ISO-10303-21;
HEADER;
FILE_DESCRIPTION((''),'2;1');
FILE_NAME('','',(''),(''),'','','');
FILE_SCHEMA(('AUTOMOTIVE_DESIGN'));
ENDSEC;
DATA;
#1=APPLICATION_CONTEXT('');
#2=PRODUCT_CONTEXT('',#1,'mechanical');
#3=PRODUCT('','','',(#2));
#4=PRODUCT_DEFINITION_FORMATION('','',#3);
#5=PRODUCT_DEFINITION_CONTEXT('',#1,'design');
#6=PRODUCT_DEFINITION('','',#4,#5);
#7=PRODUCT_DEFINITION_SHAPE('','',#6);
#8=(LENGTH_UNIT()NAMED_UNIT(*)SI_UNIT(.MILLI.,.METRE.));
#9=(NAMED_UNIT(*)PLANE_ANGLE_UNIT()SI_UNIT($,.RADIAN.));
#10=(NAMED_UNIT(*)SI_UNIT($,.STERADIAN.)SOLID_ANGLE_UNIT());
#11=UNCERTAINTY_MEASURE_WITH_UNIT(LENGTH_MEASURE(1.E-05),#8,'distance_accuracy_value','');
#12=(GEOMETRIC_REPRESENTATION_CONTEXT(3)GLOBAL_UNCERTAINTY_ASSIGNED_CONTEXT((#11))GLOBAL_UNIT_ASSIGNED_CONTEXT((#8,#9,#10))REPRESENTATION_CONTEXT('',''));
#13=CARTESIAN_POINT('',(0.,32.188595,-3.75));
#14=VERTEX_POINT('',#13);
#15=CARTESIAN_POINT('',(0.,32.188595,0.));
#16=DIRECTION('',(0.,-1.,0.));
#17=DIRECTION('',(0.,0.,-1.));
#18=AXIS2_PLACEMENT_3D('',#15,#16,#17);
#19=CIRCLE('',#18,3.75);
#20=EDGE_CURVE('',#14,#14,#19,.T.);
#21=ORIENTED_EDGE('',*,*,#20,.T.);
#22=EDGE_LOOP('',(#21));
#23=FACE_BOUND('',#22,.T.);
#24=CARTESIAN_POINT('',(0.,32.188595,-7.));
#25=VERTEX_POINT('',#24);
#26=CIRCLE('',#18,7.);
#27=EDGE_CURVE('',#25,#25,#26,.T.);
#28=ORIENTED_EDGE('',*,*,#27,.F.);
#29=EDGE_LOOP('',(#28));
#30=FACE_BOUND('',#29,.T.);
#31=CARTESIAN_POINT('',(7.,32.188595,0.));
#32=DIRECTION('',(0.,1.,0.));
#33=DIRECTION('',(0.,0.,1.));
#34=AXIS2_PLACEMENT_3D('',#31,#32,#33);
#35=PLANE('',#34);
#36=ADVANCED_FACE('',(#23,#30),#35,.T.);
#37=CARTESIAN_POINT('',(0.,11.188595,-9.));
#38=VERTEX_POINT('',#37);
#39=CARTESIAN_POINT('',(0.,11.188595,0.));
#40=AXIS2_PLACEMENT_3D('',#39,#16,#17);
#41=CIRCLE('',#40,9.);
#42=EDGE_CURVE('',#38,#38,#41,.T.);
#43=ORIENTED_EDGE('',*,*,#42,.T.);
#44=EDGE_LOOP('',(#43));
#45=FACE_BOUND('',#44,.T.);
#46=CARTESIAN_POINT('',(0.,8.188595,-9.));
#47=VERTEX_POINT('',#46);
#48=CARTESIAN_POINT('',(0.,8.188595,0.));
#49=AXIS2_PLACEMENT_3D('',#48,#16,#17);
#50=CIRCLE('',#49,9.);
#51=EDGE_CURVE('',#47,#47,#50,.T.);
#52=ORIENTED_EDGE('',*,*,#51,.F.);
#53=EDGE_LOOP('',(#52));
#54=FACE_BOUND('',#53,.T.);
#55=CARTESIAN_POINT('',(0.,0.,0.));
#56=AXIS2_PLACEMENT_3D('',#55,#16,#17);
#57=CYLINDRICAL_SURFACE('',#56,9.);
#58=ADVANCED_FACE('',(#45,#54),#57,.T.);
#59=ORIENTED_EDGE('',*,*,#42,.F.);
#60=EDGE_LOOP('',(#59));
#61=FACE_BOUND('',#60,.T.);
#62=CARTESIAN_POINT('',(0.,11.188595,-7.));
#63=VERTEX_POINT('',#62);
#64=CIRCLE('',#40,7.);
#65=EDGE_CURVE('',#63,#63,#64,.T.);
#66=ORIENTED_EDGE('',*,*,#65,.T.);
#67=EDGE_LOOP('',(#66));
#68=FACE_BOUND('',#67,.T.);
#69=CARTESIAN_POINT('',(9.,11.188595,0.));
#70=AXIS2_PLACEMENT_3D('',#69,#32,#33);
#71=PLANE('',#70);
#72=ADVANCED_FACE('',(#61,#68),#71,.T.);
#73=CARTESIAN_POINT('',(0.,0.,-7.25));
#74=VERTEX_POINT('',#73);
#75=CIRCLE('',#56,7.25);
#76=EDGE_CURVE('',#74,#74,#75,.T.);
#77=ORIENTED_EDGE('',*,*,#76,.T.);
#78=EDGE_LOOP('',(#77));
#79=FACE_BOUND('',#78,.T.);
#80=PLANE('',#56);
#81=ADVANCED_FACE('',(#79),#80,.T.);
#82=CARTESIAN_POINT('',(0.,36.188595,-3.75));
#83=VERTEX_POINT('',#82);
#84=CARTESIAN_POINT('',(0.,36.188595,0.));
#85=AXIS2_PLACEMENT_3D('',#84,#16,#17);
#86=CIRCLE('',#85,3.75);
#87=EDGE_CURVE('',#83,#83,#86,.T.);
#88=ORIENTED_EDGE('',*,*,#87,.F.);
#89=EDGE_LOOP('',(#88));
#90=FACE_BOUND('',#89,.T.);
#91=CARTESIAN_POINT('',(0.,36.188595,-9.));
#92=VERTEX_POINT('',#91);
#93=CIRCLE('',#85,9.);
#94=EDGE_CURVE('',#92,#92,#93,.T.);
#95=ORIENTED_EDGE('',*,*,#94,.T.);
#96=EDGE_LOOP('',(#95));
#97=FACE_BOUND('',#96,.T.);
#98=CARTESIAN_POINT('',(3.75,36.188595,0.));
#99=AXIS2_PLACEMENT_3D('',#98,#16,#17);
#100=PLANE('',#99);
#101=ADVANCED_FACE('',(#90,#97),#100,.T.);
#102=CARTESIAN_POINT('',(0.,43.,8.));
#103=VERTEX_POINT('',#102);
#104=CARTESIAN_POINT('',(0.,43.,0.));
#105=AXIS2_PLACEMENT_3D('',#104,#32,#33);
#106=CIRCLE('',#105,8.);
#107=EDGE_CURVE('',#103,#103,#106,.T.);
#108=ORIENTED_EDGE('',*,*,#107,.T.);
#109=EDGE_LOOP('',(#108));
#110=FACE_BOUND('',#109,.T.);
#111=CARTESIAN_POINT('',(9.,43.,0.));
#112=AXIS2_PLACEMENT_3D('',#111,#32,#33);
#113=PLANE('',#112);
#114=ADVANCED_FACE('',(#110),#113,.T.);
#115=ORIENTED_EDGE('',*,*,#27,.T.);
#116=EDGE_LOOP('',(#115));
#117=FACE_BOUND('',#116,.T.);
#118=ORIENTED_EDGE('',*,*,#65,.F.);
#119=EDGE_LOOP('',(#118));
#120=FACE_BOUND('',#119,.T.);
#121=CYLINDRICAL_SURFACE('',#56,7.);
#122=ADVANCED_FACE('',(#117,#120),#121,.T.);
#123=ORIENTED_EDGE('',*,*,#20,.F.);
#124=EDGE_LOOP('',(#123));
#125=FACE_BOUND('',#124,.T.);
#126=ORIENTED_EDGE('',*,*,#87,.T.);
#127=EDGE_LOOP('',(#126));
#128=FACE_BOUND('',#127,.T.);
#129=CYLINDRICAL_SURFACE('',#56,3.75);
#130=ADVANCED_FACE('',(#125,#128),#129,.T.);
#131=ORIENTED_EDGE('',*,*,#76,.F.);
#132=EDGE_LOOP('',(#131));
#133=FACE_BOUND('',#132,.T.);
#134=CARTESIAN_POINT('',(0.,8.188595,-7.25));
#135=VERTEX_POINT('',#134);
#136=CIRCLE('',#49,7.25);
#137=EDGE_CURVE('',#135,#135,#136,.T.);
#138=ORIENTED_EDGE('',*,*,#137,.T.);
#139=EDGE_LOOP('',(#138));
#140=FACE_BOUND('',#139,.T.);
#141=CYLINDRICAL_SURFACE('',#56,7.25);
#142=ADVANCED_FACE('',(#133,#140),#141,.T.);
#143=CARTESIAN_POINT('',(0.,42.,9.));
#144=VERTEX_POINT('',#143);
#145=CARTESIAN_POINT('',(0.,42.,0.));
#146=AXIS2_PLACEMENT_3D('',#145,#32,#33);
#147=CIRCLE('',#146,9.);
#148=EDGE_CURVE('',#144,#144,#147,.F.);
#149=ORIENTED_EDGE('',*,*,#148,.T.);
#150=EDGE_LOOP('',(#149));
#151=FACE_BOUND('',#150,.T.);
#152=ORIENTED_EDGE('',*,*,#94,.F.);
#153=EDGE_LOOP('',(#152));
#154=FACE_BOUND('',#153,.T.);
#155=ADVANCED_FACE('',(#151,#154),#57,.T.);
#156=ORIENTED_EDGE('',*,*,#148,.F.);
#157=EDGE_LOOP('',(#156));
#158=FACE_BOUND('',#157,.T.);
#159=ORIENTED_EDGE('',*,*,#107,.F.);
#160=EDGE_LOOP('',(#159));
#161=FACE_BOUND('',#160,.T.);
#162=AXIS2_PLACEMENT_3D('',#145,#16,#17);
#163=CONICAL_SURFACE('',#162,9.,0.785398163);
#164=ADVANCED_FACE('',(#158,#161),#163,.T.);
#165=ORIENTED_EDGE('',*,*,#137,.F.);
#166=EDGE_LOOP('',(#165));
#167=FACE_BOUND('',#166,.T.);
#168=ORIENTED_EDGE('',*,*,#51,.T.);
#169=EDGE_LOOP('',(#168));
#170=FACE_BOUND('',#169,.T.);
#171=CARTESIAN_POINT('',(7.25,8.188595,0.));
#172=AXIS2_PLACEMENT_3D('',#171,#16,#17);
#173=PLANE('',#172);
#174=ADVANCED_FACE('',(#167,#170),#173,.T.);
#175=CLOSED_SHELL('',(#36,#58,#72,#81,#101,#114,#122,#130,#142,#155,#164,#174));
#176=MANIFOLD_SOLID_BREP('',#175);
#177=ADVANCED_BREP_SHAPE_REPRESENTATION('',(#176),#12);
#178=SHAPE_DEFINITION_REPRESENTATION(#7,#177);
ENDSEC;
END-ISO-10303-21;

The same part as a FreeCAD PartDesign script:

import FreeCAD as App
import Part
import Sketcher


def edges_at(feature, points):
    """Names of the edges that pass closest to the given points."""
    edges = feature.Shape.Edges
    near = lambda p: min(range(len(edges)), key=lambda i: edges[i].distToShape(Part.Vertex(*p))[0])
    return sorted({f"Edge{near(p) + 1}" for p in points})

doc = App.newDocument("Part")
params = doc.addObject("Spreadsheet::Sheet", "Params")
for row, (alias, value) in enumerate([
    ("sketch1_width", "2 mm"),
    ("sketch1_width2", "9 mm"),
    ("sketch1_height", "3 mm"),
    ("sketch1_height2", "21 mm"),
    ("sketch1_height3", "4 mm"),
    ("revolution_angle", "360 deg"),
    ("chamfer_size", "1 mm"),
], start=1):
    params.set(f"A{row}", alias)
    params.set(f"B{row}", "=" + value)
    params.setAlias(f"B{row}", alias)

body = doc.addObject("PartDesign::Body", "Body")

# Sketch on XY plane
sketch1 = body.newObject("Sketcher::SketchObject", "Sketch")
sketch1.AttachmentSupport = (doc.getObject("XY_Plane"), [""])
sketch1.MapMode = "FlatFace"
sketch1.addGeometry([
    Part.LineSegment(App.Vector(0, 0, 0), App.Vector(7.2, 0, 0)),  # 0
    Part.LineSegment(App.Vector(7.2, 0, 0), App.Vector(7.2, 8.2, 0)),  # 1
    Part.LineSegment(App.Vector(7.2, 8.2, 0), App.Vector(9, 8.2, 0)),  # 2
    Part.LineSegment(App.Vector(9, 8.2, 0), App.Vector(9, 11.2, 0)),  # 3
    Part.LineSegment(App.Vector(9, 11.2, 0), App.Vector(7, 11.2, 0)),  # 4
    Part.LineSegment(App.Vector(7, 11.2, 0), App.Vector(7, 32.2, 0)),  # 5
    Part.LineSegment(App.Vector(7, 32.2, 0), App.Vector(3.8, 32.2, 0)),  # 6
    Part.LineSegment(App.Vector(3.8, 32.2, 0), App.Vector(3.8, 36.2, 0)),  # 7
    Part.LineSegment(App.Vector(3.8, 36.2, 0), App.Vector(9, 36.2, 0)),  # 8
    Part.LineSegment(App.Vector(9, 36.2, 0), App.Vector(9, 43, 0)),  # 9
    Part.LineSegment(App.Vector(9, 43, 0), App.Vector(0, 43, 0)),  # 10
    Part.LineSegment(App.Vector(0, 43, 0), App.Vector(0, 0, 0)),  # 11
], False)
sketch1.addConstraint([
    Sketcher.Constraint("Coincident", 0, 2, 1, 1),
    Sketcher.Constraint("Coincident", 1, 2, 2, 1),
    Sketcher.Constraint("Coincident", 2, 2, 3, 1),
    Sketcher.Constraint("Coincident", 3, 2, 4, 1),
    Sketcher.Constraint("Coincident", 4, 2, 5, 1),
    Sketcher.Constraint("Coincident", 5, 2, 6, 1),
    Sketcher.Constraint("Coincident", 6, 2, 7, 1),
    Sketcher.Constraint("Coincident", 7, 2, 8, 1),
    Sketcher.Constraint("Coincident", 8, 2, 9, 1),
    Sketcher.Constraint("Coincident", 9, 2, 10, 1),
    Sketcher.Constraint("Coincident", 10, 2, 11, 1),
    Sketcher.Constraint("Coincident", 11, 2, 0, 1),
    Sketcher.Constraint("Horizontal", 0),
    Sketcher.Constraint("Vertical", 1),
    Sketcher.Constraint("Horizontal", 2),
    Sketcher.Constraint("Vertical", 3),
    Sketcher.Constraint("Horizontal", 4),
    Sketcher.Constraint("Vertical", 5),
    Sketcher.Constraint("Horizontal", 6),
    Sketcher.Constraint("Vertical", 7),
    Sketcher.Constraint("Horizontal", 8),
    Sketcher.Constraint("Vertical", 9),
    Sketcher.Constraint("Horizontal", 10),
    Sketcher.Constraint("Vertical", 11),
    Sketcher.Constraint("Coincident", 11, 2, -1, 1),
    Sketcher.Constraint("Vertical", 3, 2, 8, 2),
    Sketcher.Constraint("DistanceX", 4, 2, 4, 1, 2.0),
    Sketcher.Constraint("DistanceX", 10, 2, 10, 1, 9.0),
    Sketcher.Constraint("DistanceY", 3, 1, 3, 2, 3.0),
    Sketcher.Constraint("DistanceY", 5, 1, 5, 2, 21.0),
    Sketcher.Constraint("DistanceY", 7, 1, 7, 2, 4.0),
    Sketcher.Constraint("DistanceY", 11, 2, 11, 1, 43.0),
    Sketcher.Constraint("DistanceX", 0, 1, 0, 2, 7.25),
    Sketcher.Constraint("DistanceX", 6, 2, 6, 1, 3.25),
    Sketcher.Constraint("DistanceY", 1, 1, 1, 2, 8.188595),
])
sketch1.setExpression("Constraints[26]", "Params.sketch1_width")
sketch1.setExpression("Constraints[27]", "Params.sketch1_width2")
sketch1.setExpression("Constraints[28]", "Params.sketch1_height")
sketch1.setExpression("Constraints[29]", "Params.sketch1_height2")
sketch1.setExpression("Constraints[30]", "Params.sketch1_height3")
revolution = body.newObject("PartDesign::Revolution", "Revolution")
revolution.Profile = sketch1
revolution.ReferenceAxis = (sketch1, ["V_Axis"])
revolution.setExpression("Angle", "Params.revolution_angle")
doc.recompute()

chamfer = body.newObject("PartDesign::Chamfer", "Chamfer")
chamfer.Base = (revolution, edges_at(revolution, [(0, 43, 9)]))
chamfer.setExpression("Size", "Params.chamfer_size")

doc.recompute()
